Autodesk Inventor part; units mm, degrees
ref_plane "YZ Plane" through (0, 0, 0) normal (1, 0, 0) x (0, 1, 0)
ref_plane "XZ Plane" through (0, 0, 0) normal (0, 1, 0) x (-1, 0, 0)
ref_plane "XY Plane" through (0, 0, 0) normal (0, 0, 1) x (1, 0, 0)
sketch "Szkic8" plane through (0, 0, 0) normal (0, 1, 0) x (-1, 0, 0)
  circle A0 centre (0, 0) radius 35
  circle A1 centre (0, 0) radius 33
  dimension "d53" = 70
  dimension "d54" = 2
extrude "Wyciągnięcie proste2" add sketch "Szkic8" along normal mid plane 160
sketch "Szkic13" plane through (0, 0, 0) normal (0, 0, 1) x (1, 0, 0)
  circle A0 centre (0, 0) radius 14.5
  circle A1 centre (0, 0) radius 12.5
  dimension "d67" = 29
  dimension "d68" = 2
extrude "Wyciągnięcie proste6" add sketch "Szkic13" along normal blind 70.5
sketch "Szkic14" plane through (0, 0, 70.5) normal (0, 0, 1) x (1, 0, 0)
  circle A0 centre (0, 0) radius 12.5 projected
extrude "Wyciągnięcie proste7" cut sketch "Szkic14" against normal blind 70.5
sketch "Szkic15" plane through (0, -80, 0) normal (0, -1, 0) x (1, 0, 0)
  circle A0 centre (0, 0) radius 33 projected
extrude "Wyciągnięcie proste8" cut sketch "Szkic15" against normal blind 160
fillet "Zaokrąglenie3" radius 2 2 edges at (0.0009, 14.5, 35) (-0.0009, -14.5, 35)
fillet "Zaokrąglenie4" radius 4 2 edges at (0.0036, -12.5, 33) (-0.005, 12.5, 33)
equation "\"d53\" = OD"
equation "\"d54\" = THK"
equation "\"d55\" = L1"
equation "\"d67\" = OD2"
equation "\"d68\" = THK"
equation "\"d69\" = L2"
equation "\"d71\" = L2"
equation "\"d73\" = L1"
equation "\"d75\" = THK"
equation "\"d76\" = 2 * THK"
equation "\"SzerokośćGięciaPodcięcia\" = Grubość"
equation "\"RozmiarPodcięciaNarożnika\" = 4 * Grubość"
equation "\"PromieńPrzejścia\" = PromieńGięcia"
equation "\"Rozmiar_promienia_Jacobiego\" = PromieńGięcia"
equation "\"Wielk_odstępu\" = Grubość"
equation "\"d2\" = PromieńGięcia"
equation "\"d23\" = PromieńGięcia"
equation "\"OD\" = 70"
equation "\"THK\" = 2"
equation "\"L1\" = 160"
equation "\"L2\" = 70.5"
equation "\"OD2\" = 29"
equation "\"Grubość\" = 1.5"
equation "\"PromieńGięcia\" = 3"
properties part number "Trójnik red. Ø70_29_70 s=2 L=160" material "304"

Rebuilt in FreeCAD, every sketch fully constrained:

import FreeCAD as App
import Part
import Sketcher


def edges_at(feature, points):
    """Names of the edges that pass closest to the given points."""
    edges = feature.Shape.Edges
    near = lambda p: min(range(len(edges)), key=lambda i: edges[i].distToShape(Part.Vertex(*p))[0])
    return sorted({f"Edge{near(p) + 1}" for p in points})

doc = App.newDocument("Part")
body = doc.addObject("PartDesign::Body", "Body")

sketch1 = body.newObject("Sketcher::SketchObject", "Sketch")
sketch1.AttachmentSupport = (doc.getObject("XZ_Plane"), [""])
sketch1.MapMode = "FlatFace"
sketch1.addGeometry(Part.Circle(App.Vector(0, 0, 0), App.Vector(0, 0, 1), 35), False)
sketch1.addGeometry(Part.Circle(App.Vector(0, 0, 0), App.Vector(0, 0, 1), 33), False)
sketch1.addConstraint(Sketcher.Constraint("Coincident", 0, 3, -1, 1))
sketch1.addConstraint(Sketcher.Constraint("Coincident", 1, 3, -1, 1))
sketch1.addConstraint(Sketcher.Constraint("Diameter", 0, 70.0))
sketch1.addConstraint(Sketcher.Constraint("Diameter", 1, 66.0))
pad1 = body.newObject("PartDesign::Pad", "Pad")
pad1.Profile = sketch1
pad1.Length = 160
pad1.Midplane = True

sketch2 = body.newObject("Sketcher::SketchObject", "Sketch001")
sketch2.AttachmentSupport = (doc.getObject("XY_Plane"), [""])
sketch2.MapMode = "FlatFace"
sketch2.addGeometry(Part.Circle(App.Vector(0, 0, 0), App.Vector(0, 0, 1), 14), False)
sketch2.addGeometry(Part.Circle(App.Vector(0, 0, 0), App.Vector(0, 0, 1), 12), False)
sketch2.addConstraint(Sketcher.Constraint("Coincident", 0, 3, -1, 1))
sketch2.addConstraint(Sketcher.Constraint("Coincident", 1, 3, -1, 1))
sketch2.addConstraint(Sketcher.Constraint("Diameter", 0, 29.0))
sketch2.addConstraint(Sketcher.Constraint("Diameter", 1, 25.0))
pad2 = body.newObject("PartDesign::Pad", "Pad001")
pad2.Profile = sketch2
pad2.Length = 70.5

sketch3 = body.newObject("Sketcher::SketchObject", "Sketch002")
sketch3.AttachmentSupport = (doc.getObject("XY_Plane"), [""])
sketch3.MapMode = "FlatFace"
sketch3.AttachmentOffset = App.Placement(App.Vector(0, 0, 70.5), App.Rotation())
sketch3.addGeometry(Part.Circle(App.Vector(0, 0, 0), App.Vector(0, 0, 1), 12), False)
sketch3.addConstraint(Sketcher.Constraint("Coincident", 0, 3, -1, 1))
sketch3.addConstraint(Sketcher.Constraint("Diameter", 0, 25.0))
pocket1 = body.newObject("PartDesign::Pocket", "Pocket")
pocket1.Profile = sketch3
pocket1.Length = 70.5

sketch4 = body.newObject("Sketcher::SketchObject", "Sketch003")
sketch4.AttachmentSupport = (doc.getObject("XZ_Plane"), [""])
sketch4.MapMode = "FlatFace"
sketch4.AttachmentOffset = App.Placement(App.Vector(0, 0, 80), App.Rotation())
sketch4.addGeometry(Part.Circle(App.Vector(0, 0, 0), App.Vector(0, 0, 1), 33), False)
sketch4.addConstraint(Sketcher.Constraint("Coincident", 0, 3, -1, 1))
sketch4.addConstraint(Sketcher.Constraint("Diameter", 0, 66.0))
pocket2 = body.newObject("PartDesign::Pocket", "Pocket001")
pocket2.Profile = sketch4
pocket2.Length = 160
doc.recompute()

fillet = body.newObject("PartDesign::Fillet", "Fillet")
fillet.Base = (pocket2, edges_at(pocket2, [(0.001, 14.5, 35), (-0.001, -14.5, 35)]))
fillet.Radius = 2
doc.recompute()

fillet2 = body.newObject("PartDesign::Fillet", "Fillet001")
fillet2.Base = (fillet, edges_at(fillet, [(0.004, -12.5, 33), (-0.005, 12.5, 33)]))
fillet2.Radius = 4

doc.recompute()
